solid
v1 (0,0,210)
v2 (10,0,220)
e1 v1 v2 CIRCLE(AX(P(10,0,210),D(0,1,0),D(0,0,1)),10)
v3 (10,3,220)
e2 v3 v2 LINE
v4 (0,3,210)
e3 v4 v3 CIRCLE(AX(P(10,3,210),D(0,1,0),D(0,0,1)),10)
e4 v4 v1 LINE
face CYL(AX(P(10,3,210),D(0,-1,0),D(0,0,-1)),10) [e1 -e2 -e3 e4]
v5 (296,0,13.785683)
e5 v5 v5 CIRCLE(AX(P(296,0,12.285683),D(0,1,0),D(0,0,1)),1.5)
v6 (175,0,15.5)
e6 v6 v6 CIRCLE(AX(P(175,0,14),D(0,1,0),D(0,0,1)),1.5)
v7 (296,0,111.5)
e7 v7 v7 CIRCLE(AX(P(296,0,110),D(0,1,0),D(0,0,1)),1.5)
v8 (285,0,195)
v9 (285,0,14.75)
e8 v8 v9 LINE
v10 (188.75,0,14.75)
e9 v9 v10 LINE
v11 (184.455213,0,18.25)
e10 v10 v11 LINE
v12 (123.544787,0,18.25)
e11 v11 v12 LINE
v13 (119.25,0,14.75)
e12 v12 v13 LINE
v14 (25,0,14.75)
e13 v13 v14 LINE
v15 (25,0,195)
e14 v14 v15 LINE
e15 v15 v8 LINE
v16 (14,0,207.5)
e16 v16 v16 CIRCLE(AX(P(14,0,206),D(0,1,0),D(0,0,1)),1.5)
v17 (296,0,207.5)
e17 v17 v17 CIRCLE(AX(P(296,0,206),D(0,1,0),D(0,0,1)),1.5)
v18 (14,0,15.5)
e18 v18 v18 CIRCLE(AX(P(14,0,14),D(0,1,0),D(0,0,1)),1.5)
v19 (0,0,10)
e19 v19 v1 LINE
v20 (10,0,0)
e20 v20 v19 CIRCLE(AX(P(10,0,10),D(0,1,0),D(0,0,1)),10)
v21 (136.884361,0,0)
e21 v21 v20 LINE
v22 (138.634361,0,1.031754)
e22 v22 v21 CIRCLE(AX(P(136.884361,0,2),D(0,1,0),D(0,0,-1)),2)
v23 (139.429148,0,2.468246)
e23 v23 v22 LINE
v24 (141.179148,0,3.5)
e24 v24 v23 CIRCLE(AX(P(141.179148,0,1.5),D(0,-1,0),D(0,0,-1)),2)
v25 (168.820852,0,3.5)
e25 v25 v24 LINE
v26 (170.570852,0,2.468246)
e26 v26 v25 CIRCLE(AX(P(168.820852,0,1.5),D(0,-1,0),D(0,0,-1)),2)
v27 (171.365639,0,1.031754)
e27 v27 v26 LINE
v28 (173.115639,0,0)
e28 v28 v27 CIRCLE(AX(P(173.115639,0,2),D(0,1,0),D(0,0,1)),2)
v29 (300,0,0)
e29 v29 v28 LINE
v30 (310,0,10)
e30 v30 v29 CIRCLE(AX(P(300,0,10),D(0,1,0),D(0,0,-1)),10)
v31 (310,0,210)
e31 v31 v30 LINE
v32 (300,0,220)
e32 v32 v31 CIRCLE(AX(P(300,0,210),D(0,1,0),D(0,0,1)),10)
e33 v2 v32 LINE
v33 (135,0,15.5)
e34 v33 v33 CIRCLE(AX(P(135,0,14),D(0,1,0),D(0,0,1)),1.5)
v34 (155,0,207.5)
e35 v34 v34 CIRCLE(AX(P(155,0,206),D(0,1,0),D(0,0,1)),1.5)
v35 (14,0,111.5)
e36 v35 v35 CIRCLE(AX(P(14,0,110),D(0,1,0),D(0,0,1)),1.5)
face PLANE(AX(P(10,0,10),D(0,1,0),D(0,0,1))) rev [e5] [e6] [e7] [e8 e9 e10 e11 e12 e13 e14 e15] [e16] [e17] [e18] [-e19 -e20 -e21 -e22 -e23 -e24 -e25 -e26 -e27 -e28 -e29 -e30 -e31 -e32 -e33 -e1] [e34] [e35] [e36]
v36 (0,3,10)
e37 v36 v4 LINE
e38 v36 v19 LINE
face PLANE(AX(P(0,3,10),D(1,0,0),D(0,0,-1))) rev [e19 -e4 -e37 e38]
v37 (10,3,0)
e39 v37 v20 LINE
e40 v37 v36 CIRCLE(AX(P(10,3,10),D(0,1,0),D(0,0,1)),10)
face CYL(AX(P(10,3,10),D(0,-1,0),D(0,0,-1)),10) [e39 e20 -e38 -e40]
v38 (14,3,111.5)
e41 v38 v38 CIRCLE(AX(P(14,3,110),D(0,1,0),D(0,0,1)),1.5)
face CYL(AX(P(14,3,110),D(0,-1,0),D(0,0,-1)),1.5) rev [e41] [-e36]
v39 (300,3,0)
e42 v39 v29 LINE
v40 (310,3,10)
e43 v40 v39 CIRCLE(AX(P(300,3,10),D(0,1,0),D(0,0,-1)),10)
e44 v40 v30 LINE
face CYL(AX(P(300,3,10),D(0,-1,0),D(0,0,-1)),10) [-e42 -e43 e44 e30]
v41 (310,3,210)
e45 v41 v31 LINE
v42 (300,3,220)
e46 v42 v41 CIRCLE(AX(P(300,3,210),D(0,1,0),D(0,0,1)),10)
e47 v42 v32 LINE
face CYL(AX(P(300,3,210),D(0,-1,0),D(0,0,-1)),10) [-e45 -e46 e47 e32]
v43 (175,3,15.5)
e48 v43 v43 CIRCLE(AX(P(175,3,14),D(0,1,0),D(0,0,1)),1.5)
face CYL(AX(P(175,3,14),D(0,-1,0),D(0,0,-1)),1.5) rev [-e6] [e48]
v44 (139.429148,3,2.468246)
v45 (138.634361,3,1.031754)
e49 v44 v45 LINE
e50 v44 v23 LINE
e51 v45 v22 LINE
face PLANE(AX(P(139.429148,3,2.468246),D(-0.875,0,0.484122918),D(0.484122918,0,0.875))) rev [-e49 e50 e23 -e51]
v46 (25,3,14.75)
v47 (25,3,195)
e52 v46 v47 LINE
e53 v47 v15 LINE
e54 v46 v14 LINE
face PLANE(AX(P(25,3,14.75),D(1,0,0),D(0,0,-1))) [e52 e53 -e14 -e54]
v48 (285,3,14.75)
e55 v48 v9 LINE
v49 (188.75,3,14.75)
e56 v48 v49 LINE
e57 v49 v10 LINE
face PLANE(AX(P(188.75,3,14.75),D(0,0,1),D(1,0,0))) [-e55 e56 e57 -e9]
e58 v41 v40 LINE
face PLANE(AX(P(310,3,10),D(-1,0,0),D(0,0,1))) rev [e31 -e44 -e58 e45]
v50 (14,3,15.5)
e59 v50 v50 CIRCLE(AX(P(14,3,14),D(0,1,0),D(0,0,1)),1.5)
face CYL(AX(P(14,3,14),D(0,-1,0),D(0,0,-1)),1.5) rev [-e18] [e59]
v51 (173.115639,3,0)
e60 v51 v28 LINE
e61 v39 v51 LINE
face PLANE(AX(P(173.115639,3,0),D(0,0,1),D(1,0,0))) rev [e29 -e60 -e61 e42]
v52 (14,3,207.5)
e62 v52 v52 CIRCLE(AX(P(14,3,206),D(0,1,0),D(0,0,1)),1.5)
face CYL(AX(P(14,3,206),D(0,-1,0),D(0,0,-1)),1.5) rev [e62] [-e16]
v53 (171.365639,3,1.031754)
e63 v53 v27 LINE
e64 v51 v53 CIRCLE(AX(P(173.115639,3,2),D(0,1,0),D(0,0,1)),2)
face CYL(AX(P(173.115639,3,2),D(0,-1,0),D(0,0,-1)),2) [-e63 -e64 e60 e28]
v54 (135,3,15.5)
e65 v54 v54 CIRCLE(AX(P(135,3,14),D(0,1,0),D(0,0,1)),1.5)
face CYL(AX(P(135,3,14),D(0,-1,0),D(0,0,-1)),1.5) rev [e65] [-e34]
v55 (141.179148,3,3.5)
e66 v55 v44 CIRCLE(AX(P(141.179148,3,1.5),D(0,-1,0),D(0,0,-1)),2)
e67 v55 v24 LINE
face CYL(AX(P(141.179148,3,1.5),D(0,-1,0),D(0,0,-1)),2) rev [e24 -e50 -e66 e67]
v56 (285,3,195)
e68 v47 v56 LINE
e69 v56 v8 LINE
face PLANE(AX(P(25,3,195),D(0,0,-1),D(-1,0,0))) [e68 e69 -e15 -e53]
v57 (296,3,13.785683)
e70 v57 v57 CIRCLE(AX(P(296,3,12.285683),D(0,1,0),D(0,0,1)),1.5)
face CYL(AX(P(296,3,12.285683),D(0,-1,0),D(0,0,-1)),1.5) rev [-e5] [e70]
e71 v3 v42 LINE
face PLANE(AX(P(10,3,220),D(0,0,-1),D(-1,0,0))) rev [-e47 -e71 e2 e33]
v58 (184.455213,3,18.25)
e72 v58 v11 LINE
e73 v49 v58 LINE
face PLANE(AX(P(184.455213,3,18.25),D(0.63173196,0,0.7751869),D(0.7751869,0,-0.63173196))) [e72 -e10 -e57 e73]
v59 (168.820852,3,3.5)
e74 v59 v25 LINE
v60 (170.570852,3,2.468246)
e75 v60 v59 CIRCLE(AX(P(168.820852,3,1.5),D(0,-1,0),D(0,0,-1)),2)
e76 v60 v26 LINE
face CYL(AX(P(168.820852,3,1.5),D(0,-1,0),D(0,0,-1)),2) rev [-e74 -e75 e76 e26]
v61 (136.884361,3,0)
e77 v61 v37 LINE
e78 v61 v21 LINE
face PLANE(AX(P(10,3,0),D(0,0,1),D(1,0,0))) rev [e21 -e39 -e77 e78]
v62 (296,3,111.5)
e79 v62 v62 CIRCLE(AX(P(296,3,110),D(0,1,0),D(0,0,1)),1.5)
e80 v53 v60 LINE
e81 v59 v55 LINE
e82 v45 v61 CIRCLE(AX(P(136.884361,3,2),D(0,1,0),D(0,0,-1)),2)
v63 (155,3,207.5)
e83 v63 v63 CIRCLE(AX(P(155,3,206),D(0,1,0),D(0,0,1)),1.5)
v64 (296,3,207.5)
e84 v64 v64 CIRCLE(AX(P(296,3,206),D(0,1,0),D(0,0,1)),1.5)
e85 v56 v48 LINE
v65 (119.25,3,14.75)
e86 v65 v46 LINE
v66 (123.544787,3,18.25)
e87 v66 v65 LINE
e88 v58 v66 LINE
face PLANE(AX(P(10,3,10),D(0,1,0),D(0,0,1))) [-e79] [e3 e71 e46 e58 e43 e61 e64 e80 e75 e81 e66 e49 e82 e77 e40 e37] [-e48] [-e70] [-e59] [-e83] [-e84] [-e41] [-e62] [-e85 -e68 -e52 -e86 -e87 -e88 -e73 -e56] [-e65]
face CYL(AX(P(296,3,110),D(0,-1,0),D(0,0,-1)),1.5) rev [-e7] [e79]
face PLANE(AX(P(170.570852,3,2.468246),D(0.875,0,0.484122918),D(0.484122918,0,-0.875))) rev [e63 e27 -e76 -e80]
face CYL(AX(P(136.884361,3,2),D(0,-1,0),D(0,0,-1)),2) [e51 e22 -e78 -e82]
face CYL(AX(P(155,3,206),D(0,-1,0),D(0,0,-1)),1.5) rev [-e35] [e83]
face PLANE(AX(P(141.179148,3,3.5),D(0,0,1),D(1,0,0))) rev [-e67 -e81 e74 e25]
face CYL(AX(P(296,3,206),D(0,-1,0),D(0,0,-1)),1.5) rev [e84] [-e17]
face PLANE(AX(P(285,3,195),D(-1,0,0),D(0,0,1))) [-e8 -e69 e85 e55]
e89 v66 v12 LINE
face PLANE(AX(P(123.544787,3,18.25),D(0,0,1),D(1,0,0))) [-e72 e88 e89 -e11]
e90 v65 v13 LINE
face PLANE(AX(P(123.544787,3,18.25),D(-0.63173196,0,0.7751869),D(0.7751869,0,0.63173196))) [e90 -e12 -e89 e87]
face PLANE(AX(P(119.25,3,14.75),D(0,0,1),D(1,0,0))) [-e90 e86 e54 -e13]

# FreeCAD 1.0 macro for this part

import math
import FreeCAD as App
import Part
import Sketcher
from FreeCAD import Vector
Q = App.Units.Quantity

doc = App.newDocument("Part")
body = doc.addObject("PartDesign::Body", "Body")

sketch1 = body.newObject("Sketcher::SketchObject", "Sketch")
sketch1.AttachmentSupport = (doc.getObject("XZ_Plane"), [""])
sketch1.MapMode = "FlatFace"
sketch1.addGeometry([
    Part.LineSegment(Vector(136.9, 0, 0), Vector(10, 0, 0)),
    Part.ArcOfCircle(Part.Circle(Vector(10, 10, 0), Vector(0, 0, 1), 10), math.radians(180), math.radians(270)),
    Part.LineSegment(Vector(0, 10, 0), Vector(0, 210, 0)),
    Part.ArcOfCircle(Part.Circle(Vector(10, 210, 0), Vector(0, 0, 1), 10), math.radians(90), math.radians(180)),
    Part.LineSegment(Vector(10, 220, 0), Vector(300, 220, 0)),
    Part.ArcOfCircle(Part.Circle(Vector(300, 210, 0), Vector(0, 0, 1), 10), math.radians(0), math.radians(90)),
    Part.LineSegment(Vector(310, 210, 0), Vector(310, 10, 0)),
    Part.ArcOfCircle(Part.Circle(Vector(300, 10, 0), Vector(0, 0, 1), 10), math.radians(-90), math.radians(0)),
    Part.LineSegment(Vector(300, 0, 0), Vector(173.1, 0, 0)),
    Part.ArcOfCircle(Part.Circle(Vector(173.1, 2, 0), Vector(0, 0, 1), 2), math.radians(-151), math.radians(-90)),
    Part.LineSegment(Vector(171.4, 1, 0), Vector(170.6, 2.5, 0)),
    Part.ArcOfCircle(Part.Circle(Vector(168.8, 1.5, 0), Vector(0, 0, 1), 2), math.radians(29), math.radians(90)),
    Part.LineSegment(Vector(168.8, 3.5, 0), Vector(141.2, 3.5, 0)),
    Part.ArcOfCircle(Part.Circle(Vector(141.2, 1.5, 0), Vector(0, 0, 1), 2), math.radians(90), math.radians(151)),
    Part.LineSegment(Vector(139.4, 2.5, 0), Vector(138.6, 1, 0)),
    Part.ArcOfCircle(Part.Circle(Vector(136.9, 2, 0), Vector(0, 0, 1), 2), math.radians(-90), math.radians(-29)),
    Part.Circle(Vector(296, 206, 0), Vector(0, 0, 1), 1.5),
    Part.Circle(Vector(296, 110, 0), Vector(0, 0, 1), 1.5),
    Part.Circle(Vector(155, 206, 0), Vector(0, 0, 1), 1.5),
    Part.Circle(Vector(14, 206, 0), Vector(0, 0, 1), 1.5),
    Part.Circle(Vector(14, 110, 0), Vector(0, 0, 1), 1.5),
    Part.Circle(Vector(296, 12.3, 0), Vector(0, 0, 1), 1.5),
    Part.Circle(Vector(175, 14, 0), Vector(0, 0, 1), 1.5),
    Part.LineSegment(Vector(184.5, 18.2, 0), Vector(188.8, 14.8, 0)),
    Part.LineSegment(Vector(188.8, 14.8, 0), Vector(285, 14.8, 0)),
    Part.LineSegment(Vector(285, 14.8, 0), Vector(285, 195, 0)),
    Part.LineSegment(Vector(285, 195, 0), Vector(25, 195, 0)),
    Part.LineSegment(Vector(25, 195, 0), Vector(25, 14.8, 0)),
    Part.LineSegment(Vector(25, 14.8, 0), Vector(119.2, 14.8, 0)),
    Part.LineSegment(Vector(119.2, 14.8, 0), Vector(123.5, 18.2, 0)),
    Part.LineSegment(Vector(123.5, 18.2, 0), Vector(184.5, 18.2, 0)),
    Part.Circle(Vector(135, 14, 0), Vector(0, 0, 1), 1.5),
    Part.Circle(Vector(14, 14, 0), Vector(0, 0, 1), 1.5),
], False)
sketch1.addConstraint([
    Sketcher.Constraint("Tangent", 0, 2, 1, 2),
    Sketcher.Constraint("Tangent", 1, 1, 2, 1),
    Sketcher.Constraint("Tangent", 2, 2, 3, 2),
    Sketcher.Constraint("Tangent", 3, 1, 4, 1),
    Sketcher.Constraint("Tangent", 4, 2, 5, 2),
    Sketcher.Constraint("Tangent", 5, 1, 6, 1),
    Sketcher.Constraint("Tangent", 6, 2, 7, 2),
    Sketcher.Constraint("Tangent", 7, 1, 8, 1),
    Sketcher.Constraint("Tangent", 8, 2, 9, 2),
    Sketcher.Constraint("Tangent", 9, 1, 10, 1),
    Sketcher.Constraint("Tangent", 10, 2, 11, 1),
    Sketcher.Constraint("Tangent", 11, 2, 12, 1),
    Sketcher.Constraint("Tangent", 12, 2, 13, 1),
    Sketcher.Constraint("Tangent", 13, 2, 14, 1),
    Sketcher.Constraint("Tangent", 14, 2, 15, 2),
    Sketcher.Constraint("Tangent", 15, 1, 0, 1),
    Sketcher.Constraint("Coincident", 23, 2, 24, 1),
    Sketcher.Constraint("Coincident", 24, 2, 25, 1),
    Sketcher.Constraint("Coincident", 25, 2, 26, 1),
    Sketcher.Constraint("Coincident", 26, 2, 27, 1),
    Sketcher.Constraint("Coincident", 27, 2, 28, 1),
    Sketcher.Constraint("Coincident", 28, 2, 29, 1),
    Sketcher.Constraint("Coincident", 29, 2, 30, 1),
    Sketcher.Constraint("Coincident", 30, 2, 23, 1),
    Sketcher.Constraint("Horizontal", 0),
    Sketcher.Constraint("Vertical", 2),
    Sketcher.Constraint("Horizontal", 4),
    Sketcher.Constraint("Vertical", 6),
    Sketcher.Constraint("Horizontal", 8),
    Sketcher.Constraint("Horizontal", 12),
    Sketcher.Constraint("Horizontal", 24),
    Sketcher.Constraint("Vertical", 25),
    Sketcher.Constraint("Horizontal", 26),
    Sketcher.Constraint("Vertical", 27),
    Sketcher.Constraint("Horizontal", 28),
    Sketcher.Constraint("Horizontal", 30),
    Sketcher.Constraint("Equal", 1, 3),
    Sketcher.Constraint("Equal", 3, 5),
    Sketcher.Constraint("Equal", 5, 7),
    Sketcher.Constraint("Equal", 9, 11),
    Sketcher.Constraint("Equal", 11, 13),
    Sketcher.Constraint("Equal", 13, 15),
    Sketcher.Constraint("Equal", 16, 17),
    Sketcher.Constraint("Equal", 17, 18),
    Sketcher.Constraint("Equal", 18, 19),
    Sketcher.Constraint("Equal", 19, 20),
    Sketcher.Constraint("Equal", 20, 21),
    Sketcher.Constraint("Equal", 21, 22),
    Sketcher.Constraint("Equal", 22, 31),
    Sketcher.Constraint("Equal", 31, 32),
    Sketcher.Constraint("PointOnObject", 0, 2, -1),
    Sketcher.Constraint("PointOnObject", 1, 1, -2),
    Sketcher.Constraint("PointOnObject", 7, 1, -1),
    Sketcher.Constraint("Horizontal", 16, 3, 18, 3),
    Sketcher.Constraint("Horizontal", 18, 3, 19, 3),
    Sketcher.Constraint("Horizontal", 17, 3, 20, 3),
    Sketcher.Constraint("Horizontal", 22, 3, 31, 3),
    Sketcher.Constraint("Horizontal", 31, 3, 32, 3),
    Sketcher.Constraint("Horizontal", 10, 2, 13, 2),
    Sketcher.Constraint("Horizontal", 24, 2, 27, 2),
    Sketcher.Constraint("Vertical", 16, 3, 17, 3),
    Sketcher.Constraint("Vertical", 19, 3, 20, 3),
    Sketcher.Constraint("Vertical", 17, 3, 21, 3),
    Sketcher.Constraint("Vertical", 20, 3, 32, 3),
    Sketcher.Constraint("Equal", 0, 8),
    Sketcher.Constraint("Equal", 23, 29),
    Sketcher.Constraint("Diameter", 16, Q("3 mm")),
    Sketcher.Constraint("Radius", 1, Q("10 mm")),
    Sketcher.Constraint("Radius", 9, Q("2 mm")),
    Sketcher.Constraint("DistanceX", 4, 1, 4, 2, Q("290 mm")),
    Sketcher.Constraint("DistanceX", 26, 2, 26, 1, Q("260 mm")),
    Sketcher.Constraint("DistanceY", 2, 1, 2, 2, Q("200 mm")),
    Sketcher.Constraint("DistanceX", -1, 1, 16, 3, Q("296 mm")),
    Sketcher.Constraint("DistanceY", -1, 1, 16, 3, Q("206 mm")),
    Sketcher.Constraint("DistanceY", -1, 1, 17, 3, Q("110 mm")),
    Sketcher.Constraint("DistanceX", -1, 1, 18, 3, Q("155 mm")),
    Sketcher.Constraint("DistanceX", -1, 1, 19, 3, Q("14 mm")),
    Sketcher.Constraint("DistanceX", -1, 1, 22, 3, Q("175 mm")),
    Sketcher.Constraint("DistanceY", -1, 1, 22, 3, Q("14 mm")),
    Sketcher.Constraint("DistanceX", -1, 1, 31, 3, Q("135 mm")),
    Sketcher.Constraint("DistanceX", -1, 1, 24, 2, Q("285 mm")),
    Sketcher.Constraint("DistanceY", -1, 1, 25, 2, Q("195 mm")),
    Sketcher.Constraint("DistanceX", 24, 1, 24, 2, Q("96.25 mm")),
    Sketcher.Constraint("DistanceX", 28, 1, 28, 2, Q("94.25 mm")),
    Sketcher.Constraint("DistanceY", 25, 1, 25, 2, Q("180.25 mm")),
    Sketcher.Constraint("DistanceY", -1, 1, 11, 3, Q("1.5 mm")),
    Sketcher.Constraint("DistanceY", 28, 2, 29, 2, Q("3.5 mm")),
    Sketcher.Constraint("DistanceX", 9, 1, 9, 3, Q("1.75 mm")),
    Sketcher.Constraint("DistanceX", 0, 2, 0, 1, Q("126.884361 mm")),
    Sketcher.Constraint("DistanceX", 30, 1, 30, 2, Q("60.910426 mm")),
    Sketcher.Constraint("DistanceY", -1, 1, 21, 3, Q("12.285683 mm")),
])
pad1 = body.newObject("PartDesign::Pad", "Pad")
pad1.Profile = sketch1
pad1.Length = 3
pad1.Reversed = True

doc.recompute()
